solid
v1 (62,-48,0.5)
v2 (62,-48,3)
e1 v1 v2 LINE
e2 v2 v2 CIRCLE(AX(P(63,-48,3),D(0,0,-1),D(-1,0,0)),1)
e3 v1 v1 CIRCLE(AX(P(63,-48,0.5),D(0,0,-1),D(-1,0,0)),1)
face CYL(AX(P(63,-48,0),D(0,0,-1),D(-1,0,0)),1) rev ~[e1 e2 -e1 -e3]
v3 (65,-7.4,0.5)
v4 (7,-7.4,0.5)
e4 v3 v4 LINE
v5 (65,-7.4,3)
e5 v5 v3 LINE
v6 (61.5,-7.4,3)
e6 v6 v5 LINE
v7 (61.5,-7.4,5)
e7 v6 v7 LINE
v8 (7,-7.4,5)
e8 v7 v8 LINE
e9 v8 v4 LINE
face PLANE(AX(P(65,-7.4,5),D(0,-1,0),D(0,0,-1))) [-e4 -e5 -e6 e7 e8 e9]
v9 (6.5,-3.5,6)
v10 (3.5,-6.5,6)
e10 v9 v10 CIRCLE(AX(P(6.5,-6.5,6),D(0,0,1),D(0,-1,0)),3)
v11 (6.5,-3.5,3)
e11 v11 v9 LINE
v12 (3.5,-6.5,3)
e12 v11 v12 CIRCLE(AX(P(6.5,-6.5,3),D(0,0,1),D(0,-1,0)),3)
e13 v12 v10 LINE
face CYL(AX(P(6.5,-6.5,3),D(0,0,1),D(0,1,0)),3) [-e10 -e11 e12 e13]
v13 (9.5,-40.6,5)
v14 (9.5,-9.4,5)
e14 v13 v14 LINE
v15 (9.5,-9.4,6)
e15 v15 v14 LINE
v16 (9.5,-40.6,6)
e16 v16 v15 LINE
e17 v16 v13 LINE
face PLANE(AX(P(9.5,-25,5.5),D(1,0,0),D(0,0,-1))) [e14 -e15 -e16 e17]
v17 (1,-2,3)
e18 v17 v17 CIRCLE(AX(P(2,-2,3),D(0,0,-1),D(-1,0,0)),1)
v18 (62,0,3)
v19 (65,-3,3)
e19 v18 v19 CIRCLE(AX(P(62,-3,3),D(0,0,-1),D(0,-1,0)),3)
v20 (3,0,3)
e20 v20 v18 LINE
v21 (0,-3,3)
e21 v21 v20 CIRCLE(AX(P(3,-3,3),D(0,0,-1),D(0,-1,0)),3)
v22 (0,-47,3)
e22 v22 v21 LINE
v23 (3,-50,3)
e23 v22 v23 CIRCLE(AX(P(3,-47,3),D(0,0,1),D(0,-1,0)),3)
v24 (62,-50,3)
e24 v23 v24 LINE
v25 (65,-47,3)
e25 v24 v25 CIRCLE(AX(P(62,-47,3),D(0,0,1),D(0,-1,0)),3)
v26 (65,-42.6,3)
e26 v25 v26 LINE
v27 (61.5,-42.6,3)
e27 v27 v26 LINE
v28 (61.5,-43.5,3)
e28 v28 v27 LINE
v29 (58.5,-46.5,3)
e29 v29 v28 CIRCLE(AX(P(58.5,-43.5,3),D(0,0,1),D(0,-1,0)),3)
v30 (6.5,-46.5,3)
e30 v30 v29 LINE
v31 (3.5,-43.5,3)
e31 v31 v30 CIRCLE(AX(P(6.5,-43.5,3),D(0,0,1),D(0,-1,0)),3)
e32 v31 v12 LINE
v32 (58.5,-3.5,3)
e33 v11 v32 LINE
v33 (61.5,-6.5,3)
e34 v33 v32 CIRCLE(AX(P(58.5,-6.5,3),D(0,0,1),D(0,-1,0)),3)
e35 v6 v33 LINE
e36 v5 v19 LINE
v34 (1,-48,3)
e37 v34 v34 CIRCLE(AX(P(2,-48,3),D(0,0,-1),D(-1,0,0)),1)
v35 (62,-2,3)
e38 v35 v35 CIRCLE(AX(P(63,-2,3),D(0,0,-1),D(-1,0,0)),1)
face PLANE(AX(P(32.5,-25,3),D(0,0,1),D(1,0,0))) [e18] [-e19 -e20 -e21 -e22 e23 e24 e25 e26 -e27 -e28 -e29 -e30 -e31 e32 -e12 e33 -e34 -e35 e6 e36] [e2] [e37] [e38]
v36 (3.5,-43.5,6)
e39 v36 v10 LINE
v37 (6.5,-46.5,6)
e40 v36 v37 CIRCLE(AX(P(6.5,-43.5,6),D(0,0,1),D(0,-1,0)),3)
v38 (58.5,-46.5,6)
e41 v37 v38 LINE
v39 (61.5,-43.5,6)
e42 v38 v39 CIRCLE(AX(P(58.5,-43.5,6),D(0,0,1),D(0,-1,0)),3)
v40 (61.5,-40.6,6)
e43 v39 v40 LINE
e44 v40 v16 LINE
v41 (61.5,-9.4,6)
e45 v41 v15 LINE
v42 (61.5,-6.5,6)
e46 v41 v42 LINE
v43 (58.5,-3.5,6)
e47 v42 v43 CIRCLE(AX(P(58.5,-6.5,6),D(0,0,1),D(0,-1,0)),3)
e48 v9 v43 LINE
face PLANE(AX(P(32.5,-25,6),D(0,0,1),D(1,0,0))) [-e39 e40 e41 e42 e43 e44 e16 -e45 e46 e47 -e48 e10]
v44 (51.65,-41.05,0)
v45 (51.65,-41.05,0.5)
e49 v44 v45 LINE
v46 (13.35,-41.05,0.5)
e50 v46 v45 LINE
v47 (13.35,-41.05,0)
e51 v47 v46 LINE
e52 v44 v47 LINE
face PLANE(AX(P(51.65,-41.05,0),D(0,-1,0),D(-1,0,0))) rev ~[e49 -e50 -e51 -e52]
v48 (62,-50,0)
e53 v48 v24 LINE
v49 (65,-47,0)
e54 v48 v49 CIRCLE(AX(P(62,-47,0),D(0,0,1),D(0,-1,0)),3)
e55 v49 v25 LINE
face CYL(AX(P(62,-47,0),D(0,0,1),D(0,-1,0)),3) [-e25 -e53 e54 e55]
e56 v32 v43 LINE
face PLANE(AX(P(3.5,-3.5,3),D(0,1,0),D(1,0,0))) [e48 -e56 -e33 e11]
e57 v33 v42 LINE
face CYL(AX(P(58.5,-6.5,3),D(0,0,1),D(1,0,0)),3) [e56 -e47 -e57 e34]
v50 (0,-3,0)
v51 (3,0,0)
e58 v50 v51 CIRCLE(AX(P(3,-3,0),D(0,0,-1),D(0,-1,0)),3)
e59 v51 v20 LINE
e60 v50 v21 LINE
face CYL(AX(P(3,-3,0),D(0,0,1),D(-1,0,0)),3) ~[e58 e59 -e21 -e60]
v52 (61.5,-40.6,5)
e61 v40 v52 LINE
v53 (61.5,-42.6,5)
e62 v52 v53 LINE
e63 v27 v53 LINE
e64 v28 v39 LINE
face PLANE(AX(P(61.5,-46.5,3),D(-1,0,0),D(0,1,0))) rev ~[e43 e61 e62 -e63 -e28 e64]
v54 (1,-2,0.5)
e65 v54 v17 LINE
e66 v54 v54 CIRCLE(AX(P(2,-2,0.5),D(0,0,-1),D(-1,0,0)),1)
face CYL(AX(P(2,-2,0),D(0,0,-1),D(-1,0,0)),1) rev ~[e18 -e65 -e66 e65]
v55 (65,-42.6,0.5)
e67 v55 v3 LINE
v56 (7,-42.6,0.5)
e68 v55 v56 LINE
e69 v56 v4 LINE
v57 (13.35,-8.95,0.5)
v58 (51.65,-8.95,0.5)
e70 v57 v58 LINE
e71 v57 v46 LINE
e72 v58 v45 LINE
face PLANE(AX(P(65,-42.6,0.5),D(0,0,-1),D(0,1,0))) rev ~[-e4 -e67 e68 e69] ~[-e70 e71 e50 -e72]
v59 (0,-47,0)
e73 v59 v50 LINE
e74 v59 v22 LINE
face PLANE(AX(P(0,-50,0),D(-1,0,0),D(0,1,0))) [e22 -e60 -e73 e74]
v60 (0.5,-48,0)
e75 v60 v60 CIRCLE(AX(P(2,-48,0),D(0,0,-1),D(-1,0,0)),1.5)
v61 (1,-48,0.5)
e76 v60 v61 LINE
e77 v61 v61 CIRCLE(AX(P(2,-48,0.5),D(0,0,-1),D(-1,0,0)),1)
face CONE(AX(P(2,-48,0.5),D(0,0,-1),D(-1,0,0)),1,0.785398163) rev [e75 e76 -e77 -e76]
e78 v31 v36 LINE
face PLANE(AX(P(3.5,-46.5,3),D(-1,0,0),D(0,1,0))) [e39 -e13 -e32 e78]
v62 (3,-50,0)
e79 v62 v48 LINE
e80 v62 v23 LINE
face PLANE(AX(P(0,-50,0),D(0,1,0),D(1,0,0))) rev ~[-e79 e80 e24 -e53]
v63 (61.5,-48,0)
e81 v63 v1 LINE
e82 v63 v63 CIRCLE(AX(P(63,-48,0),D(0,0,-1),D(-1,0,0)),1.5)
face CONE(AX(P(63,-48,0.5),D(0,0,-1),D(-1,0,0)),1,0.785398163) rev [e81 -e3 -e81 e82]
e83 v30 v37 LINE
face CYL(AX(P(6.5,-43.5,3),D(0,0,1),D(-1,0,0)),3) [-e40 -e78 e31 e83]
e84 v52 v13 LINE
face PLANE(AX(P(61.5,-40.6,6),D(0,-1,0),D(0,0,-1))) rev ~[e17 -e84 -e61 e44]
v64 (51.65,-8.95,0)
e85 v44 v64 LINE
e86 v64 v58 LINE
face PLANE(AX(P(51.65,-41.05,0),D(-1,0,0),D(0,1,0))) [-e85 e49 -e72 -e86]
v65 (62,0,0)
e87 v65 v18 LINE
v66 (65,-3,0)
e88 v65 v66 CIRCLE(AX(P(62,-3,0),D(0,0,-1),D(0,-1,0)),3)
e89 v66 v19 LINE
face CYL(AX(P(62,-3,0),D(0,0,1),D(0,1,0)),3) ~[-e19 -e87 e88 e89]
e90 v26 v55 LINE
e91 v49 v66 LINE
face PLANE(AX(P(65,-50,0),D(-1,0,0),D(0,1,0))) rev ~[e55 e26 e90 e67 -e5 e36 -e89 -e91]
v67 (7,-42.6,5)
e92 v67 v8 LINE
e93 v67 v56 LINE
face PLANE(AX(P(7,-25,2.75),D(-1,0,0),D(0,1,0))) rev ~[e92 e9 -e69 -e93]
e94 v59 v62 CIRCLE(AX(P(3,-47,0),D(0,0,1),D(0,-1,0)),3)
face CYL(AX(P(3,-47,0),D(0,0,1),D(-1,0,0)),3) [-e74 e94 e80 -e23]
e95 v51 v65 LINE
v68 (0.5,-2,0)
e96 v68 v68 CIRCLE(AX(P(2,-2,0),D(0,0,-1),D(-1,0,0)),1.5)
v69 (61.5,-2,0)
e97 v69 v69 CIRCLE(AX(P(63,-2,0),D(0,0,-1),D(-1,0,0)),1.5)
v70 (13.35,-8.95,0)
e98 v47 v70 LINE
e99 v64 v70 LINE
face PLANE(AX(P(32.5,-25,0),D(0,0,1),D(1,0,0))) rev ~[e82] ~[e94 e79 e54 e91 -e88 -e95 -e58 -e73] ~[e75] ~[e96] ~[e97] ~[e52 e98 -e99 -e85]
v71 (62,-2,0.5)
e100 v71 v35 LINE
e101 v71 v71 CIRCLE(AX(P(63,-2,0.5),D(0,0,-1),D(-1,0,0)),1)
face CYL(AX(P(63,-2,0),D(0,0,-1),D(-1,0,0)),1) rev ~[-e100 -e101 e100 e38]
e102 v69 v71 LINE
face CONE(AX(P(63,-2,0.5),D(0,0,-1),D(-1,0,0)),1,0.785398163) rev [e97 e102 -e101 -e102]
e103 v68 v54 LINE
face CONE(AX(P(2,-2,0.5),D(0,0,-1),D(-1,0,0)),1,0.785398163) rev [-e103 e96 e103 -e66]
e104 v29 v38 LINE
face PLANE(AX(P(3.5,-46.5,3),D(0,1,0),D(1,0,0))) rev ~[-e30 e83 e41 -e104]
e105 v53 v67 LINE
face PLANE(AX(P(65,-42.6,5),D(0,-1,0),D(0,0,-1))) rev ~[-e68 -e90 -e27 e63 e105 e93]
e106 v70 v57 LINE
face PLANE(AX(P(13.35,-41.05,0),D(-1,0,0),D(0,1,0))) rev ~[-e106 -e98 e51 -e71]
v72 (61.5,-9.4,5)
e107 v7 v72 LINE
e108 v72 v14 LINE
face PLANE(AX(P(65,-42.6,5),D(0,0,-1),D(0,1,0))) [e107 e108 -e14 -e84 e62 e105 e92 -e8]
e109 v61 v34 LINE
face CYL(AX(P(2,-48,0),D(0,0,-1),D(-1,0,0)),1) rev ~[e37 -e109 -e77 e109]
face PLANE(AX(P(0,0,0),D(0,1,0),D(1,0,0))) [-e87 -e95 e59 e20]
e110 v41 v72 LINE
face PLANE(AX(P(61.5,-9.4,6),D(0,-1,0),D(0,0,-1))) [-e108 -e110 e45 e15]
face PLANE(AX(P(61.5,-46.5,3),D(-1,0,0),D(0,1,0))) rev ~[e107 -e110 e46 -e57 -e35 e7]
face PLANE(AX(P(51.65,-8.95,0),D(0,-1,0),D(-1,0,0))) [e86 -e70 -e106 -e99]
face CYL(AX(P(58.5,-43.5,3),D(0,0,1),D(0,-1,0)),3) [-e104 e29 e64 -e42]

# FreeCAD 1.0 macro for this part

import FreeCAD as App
import Part
import Sketcher
from FreeCAD import Vector
Q = App.Units.Quantity


def edges_at(feature, points):
    """Names of the edges that pass closest to the given points."""
    edges = feature.Shape.Edges
    near = lambda p: min(range(len(edges)), key=lambda i: edges[i].distToShape(Part.Vertex(*p))[0])
    return sorted({f"Edge{near(p) + 1}" for p in points})

doc = App.newDocument("Part")
body = doc.addObject("PartDesign::Body", "Body")

# Sketch on XY plane
sketch1 = body.newObject("Sketcher::SketchObject", "Sketch")
sketch1.AttachmentSupport = (doc.getObject("XY_Plane"), [""])
sketch1.MapMode = "FlatFace"
sketch1.addGeometry([
    Part.LineSegment(Vector(0, 0, 0), Vector(0, -50, 0)),
    Part.LineSegment(Vector(0, -50, 0), Vector(65, -50, 0)),
    Part.LineSegment(Vector(65, -50, 0), Vector(65, 0, 0)),
    Part.LineSegment(Vector(65, 0, 0), Vector(0, 0, 0)),
], False)
sketch1.addConstraint([
    Sketcher.Constraint("Coincident", 0, 2, 1, 1),
    Sketcher.Constraint("Coincident", 1, 2, 2, 1),
    Sketcher.Constraint("Coincident", 2, 2, 3, 1),
    Sketcher.Constraint("Coincident", 3, 2, 0, 1),
    Sketcher.Constraint("Vertical", 0),
    Sketcher.Constraint("Horizontal", 1),
    Sketcher.Constraint("Vertical", 2),
    Sketcher.Constraint("Horizontal", 3),
    Sketcher.Constraint("Coincident", 3, 2, -1, 1),
    Sketcher.Constraint("DistanceX", 1, 1, 1, 2, Q("65 mm")),
    Sketcher.Constraint("DistanceY", 0, 2, 0, 1, Q("50 mm")),
])
pad1 = body.newObject("PartDesign::Pad", "Pad")
pad1.Profile = sketch1
pad1.Length = 3

# Sketch on XY plane
sketch2 = body.newObject("Sketcher::SketchObject", "Sketch001")
sketch2.AttachmentSupport = (doc.getObject("XY_Plane"), [""])
sketch2.MapMode = "FlatFace"
sketch2.AttachmentOffset = App.Placement(Vector(0, 0, 3), App.Rotation())
sketch2.addGeometry([
    Part.LineSegment(Vector(4, -4, 0), Vector(4, -46, 0)),
    Part.LineSegment(Vector(4, -46, 0), Vector(62, -46, 0)),
    Part.LineSegment(Vector(62, -46, 0), Vector(62, -4, 0)),
    Part.LineSegment(Vector(62, -4, 0), Vector(4, -4, 0)),
], False)
sketch2.addConstraint([
    Sketcher.Constraint("Coincident", 0, 2, 1, 1),
    Sketcher.Constraint("Coincident", 1, 2, 2, 1),
    Sketcher.Constraint("Coincident", 2, 2, 3, 1),
    Sketcher.Constraint("Coincident", 3, 2, 0, 1),
    Sketcher.Constraint("Vertical", 0),
    Sketcher.Constraint("Horizontal", 1),
    Sketcher.Constraint("Vertical", 2),
    Sketcher.Constraint("Horizontal", 3),
    Sketcher.Constraint("DistanceX", 1, 1, 1, 2, Q("58 mm")),
    Sketcher.Constraint("DistanceY", 0, 2, 0, 1, Q("43 mm")),
    Sketcher.Constraint("DistanceX", -1, 1, 0, 2, Q("3.5 mm")),
    Sketcher.Constraint("DistanceY", 0, 2, -1, 1, Q("46.5 mm")),
])
pad2 = body.newObject("PartDesign::Pad", "Pad001")
pad2.Profile = sketch2
pad2.Length = 3

# Sketch on YZ plane
sketch3 = body.newObject("Sketcher::SketchObject", "Sketch002")
sketch3.AttachmentSupport = (doc.getObject("YZ_Plane"), [""])
sketch3.MapMode = "FlatFace"
sketch3.AttachmentOffset = App.Placement(Vector(0, 0, 65), App.Rotation())
sketch3.addGeometry([
    Part.LineSegment(Vector(-42.6, 0.5, 0), Vector(-42.6, 5, 0)),
    Part.LineSegment(Vector(-42.6, 5, 0), Vector(-7.4, 5, 0)),
    Part.LineSegment(Vector(-7.4, 5, 0), Vector(-7.4, 0.5, 0)),
    Part.LineSegment(Vector(-7.4, 0.5, 0), Vector(-42.6, 0.5, 0)),
], False)
sketch3.addConstraint([
    Sketcher.Constraint("Coincident", 0, 2, 1, 1),
    Sketcher.Constraint("Coincident", 1, 2, 2, 1),
    Sketcher.Constraint("Coincident", 2, 2, 3, 1),
    Sketcher.Constraint("Coincident", 3, 2, 0, 1),
    Sketcher.Constraint("Vertical", 0),
    Sketcher.Constraint("Horizontal", 1),
    Sketcher.Constraint("Vertical", 2),
    Sketcher.Constraint("Horizontal", 3),
    Sketcher.Constraint("DistanceX", 1, 1, 1, 2, Q("35.2 mm")),
    Sketcher.Constraint("DistanceY", 0, 1, 0, 2, Q("4.5 mm")),
    Sketcher.Constraint("DistanceY", -1, 1, 0, 2, Q("5 mm")),
    Sketcher.Constraint("DistanceX", 0, 2, -1, 1, Q("42.6 mm")),
])
pocket1 = body.newObject("PartDesign::Pocket", "Pocket")
pocket1.Profile = sketch3
pocket1.Length = 58

# Sketch on YZ plane
sketch4 = body.newObject("Sketcher::SketchObject", "Sketch003")
sketch4.AttachmentSupport = (doc.getObject("YZ_Plane"), [""])
sketch4.MapMode = "FlatFace"
sketch4.AttachmentOffset = App.Placement(Vector(0, 0, 61.5), App.Rotation())
sketch4.addGeometry([
    Part.LineSegment(Vector(-9.4, 6, 0), Vector(-40.6, 6, 0)),
    Part.LineSegment(Vector(-40.6, 6, 0), Vector(-40.6, 5, 0)),
    Part.LineSegment(Vector(-40.6, 5, 0), Vector(-9.4, 5, 0)),
    Part.LineSegment(Vector(-9.4, 5, 0), Vector(-9.4, 6, 0)),
], False)
sketch4.addConstraint([
    Sketcher.Constraint("Coincident", 0, 2, 1, 1),
    Sketcher.Constraint("Coincident", 1, 2, 2, 1),
    Sketcher.Constraint("Coincident", 2, 2, 3, 1),
    Sketcher.Constraint("Coincident", 3, 2, 0, 1),
    Sketcher.Constraint("Horizontal", 0),
    Sketcher.Constraint("Vertical", 1),
    Sketcher.Constraint("Horizontal", 2),
    Sketcher.Constraint("Vertical", 3),
    Sketcher.Constraint("DistanceY", 1, 2, 1, 1, Q("1 mm")),
    Sketcher.Constraint("DistanceX", 0, 2, 0, 1, Q("31.2 mm")),
    Sketcher.Constraint("DistanceY", -1, 1, 0, 2, Q("6 mm")),
    Sketcher.Constraint("DistanceX", 0, 2, -1, 1, Q("40.6 mm")),
])
pocket2 = body.newObject("PartDesign::Pocket", "Pocket001")
pocket2.Profile = sketch4
pocket2.Length = 52

# Sketch on XY plane
sketch5 = body.newObject("Sketcher::SketchObject", "Sketch004")
sketch5.AttachmentSupport = (doc.getObject("XY_Plane"), [""])
sketch5.MapMode = "FlatFace"
sketch5.addGeometry([
    Part.LineSegment(Vector(52, -9, 0), Vector(52, -41, 0)),
    Part.LineSegment(Vector(52, -41, 0), Vector(13, -41, 0)),
    Part.LineSegment(Vector(13, -41, 0), Vector(13, -9, 0)),
    Part.LineSegment(Vector(13, -9, 0), Vector(52, -9, 0)),
], False)
sketch5.addConstraint([
    Sketcher.Constraint("Coincident", 0, 2, 1, 1),
    Sketcher.Constraint("Coincident", 1, 2, 2, 1),
    Sketcher.Constraint("Coincident", 2, 2, 3, 1),
    Sketcher.Constraint("Coincident", 3, 2, 0, 1),
    Sketcher.Constraint("Vertical", 0),
    Sketcher.Constraint("Horizontal", 1),
    Sketcher.Constraint("Vertical", 2),
    Sketcher.Constraint("Horizontal", 3),
    Sketcher.Constraint("DistanceX", 1, 2, 1, 1, Q("38.3 mm")),
    Sketcher.Constraint("DistanceY", 0, 2, 0, 1, Q("32.1 mm")),
    Sketcher.Constraint("DistanceX", -1, 1, 0, 2, Q("51.65 mm")),
    Sketcher.Constraint("DistanceY", 0, 2, -1, 1, Q("41.05 mm")),
])
pocket3 = body.newObject("PartDesign::Pocket", "Pocket002")
pocket3.Profile = sketch5
pocket3.Type = "UpToFirst"
pocket3.Reversed = True
doc.recompute()

fillet = body.newObject("PartDesign::Fillet", "Fillet")
fillet.Base = (pocket3, edges_at(pocket3, [
    (61.5, -3.5, 4.5),
    (3.5, -3.5, 4.5),
    (3.5, -46.5, 4.5),
    (61.5, -46.5, 4.5),
    (0, 0, 1.5),
    (65, 0, 1.5),
    (65, -50, 1.5),
    (0, -50, 1.5),
]))
fillet.Radius = 3

# Sketch on XY plane
sketch6 = body.newObject("Sketcher::SketchObject", "Sketch005")
sketch6.AttachmentSupport = (doc.getObject("XY_Plane"), [""])
sketch6.MapMode = "FlatFace"
sketch6.addGeometry([
    Part.Circle(Vector(63, -2, 0), Vector(0, 0, 1), 1),
    Part.Circle(Vector(2, -2, 0), Vector(0, 0, 1), 1),
    Part.Circle(Vector(2, -48, 0), Vector(0, 0, 1), 1),
    Part.Circle(Vector(63, -48, 0), Vector(0, 0, 1), 1),
], False)
sketch6.addConstraint([
    Sketcher.Constraint("Equal", 0, 1),
    Sketcher.Constraint("Equal", 1, 2),
    Sketcher.Constraint("Equal", 2, 3),
    Sketcher.Constraint("Horizontal", 0, 3, 1, 3),
    Sketcher.Constraint("Horizontal", 2, 3, 3, 3),
    Sketcher.Constraint("Vertical", 1, 3, 2, 3),
    Sketcher.Constraint("Vertical", 0, 3, 3, 3),
    Sketcher.Constraint("Diameter", 0, Q("2 mm")),
    Sketcher.Constraint("DistanceX", -1, 1, 0, 3, Q("63 mm")),
    Sketcher.Constraint("DistanceY", 0, 3, -1, 1, Q("2 mm")),
    Sketcher.Constraint("DistanceX", -1, 1, 1, 3, Q("2 mm")),
    Sketcher.Constraint("DistanceY", 2, 3, -1, 1, Q("48 mm")),
])
pocket4 = body.newObject("PartDesign::Pocket", "Pocket003")
pocket4.Profile = sketch6
pocket4.Type = "ThroughAll"
pocket4.Reversed = True
doc.recompute()

chamfer = body.newObject("PartDesign::Chamfer", "Chamfer")
chamfer.Base = (pocket4, edges_at(pocket4, [
    (64, -2, 0),
    (3, -2, 0),
    (3, -48, 0),
    (64, -48, 0),
]))
chamfer.Size = 0.5

doc.recompute()
